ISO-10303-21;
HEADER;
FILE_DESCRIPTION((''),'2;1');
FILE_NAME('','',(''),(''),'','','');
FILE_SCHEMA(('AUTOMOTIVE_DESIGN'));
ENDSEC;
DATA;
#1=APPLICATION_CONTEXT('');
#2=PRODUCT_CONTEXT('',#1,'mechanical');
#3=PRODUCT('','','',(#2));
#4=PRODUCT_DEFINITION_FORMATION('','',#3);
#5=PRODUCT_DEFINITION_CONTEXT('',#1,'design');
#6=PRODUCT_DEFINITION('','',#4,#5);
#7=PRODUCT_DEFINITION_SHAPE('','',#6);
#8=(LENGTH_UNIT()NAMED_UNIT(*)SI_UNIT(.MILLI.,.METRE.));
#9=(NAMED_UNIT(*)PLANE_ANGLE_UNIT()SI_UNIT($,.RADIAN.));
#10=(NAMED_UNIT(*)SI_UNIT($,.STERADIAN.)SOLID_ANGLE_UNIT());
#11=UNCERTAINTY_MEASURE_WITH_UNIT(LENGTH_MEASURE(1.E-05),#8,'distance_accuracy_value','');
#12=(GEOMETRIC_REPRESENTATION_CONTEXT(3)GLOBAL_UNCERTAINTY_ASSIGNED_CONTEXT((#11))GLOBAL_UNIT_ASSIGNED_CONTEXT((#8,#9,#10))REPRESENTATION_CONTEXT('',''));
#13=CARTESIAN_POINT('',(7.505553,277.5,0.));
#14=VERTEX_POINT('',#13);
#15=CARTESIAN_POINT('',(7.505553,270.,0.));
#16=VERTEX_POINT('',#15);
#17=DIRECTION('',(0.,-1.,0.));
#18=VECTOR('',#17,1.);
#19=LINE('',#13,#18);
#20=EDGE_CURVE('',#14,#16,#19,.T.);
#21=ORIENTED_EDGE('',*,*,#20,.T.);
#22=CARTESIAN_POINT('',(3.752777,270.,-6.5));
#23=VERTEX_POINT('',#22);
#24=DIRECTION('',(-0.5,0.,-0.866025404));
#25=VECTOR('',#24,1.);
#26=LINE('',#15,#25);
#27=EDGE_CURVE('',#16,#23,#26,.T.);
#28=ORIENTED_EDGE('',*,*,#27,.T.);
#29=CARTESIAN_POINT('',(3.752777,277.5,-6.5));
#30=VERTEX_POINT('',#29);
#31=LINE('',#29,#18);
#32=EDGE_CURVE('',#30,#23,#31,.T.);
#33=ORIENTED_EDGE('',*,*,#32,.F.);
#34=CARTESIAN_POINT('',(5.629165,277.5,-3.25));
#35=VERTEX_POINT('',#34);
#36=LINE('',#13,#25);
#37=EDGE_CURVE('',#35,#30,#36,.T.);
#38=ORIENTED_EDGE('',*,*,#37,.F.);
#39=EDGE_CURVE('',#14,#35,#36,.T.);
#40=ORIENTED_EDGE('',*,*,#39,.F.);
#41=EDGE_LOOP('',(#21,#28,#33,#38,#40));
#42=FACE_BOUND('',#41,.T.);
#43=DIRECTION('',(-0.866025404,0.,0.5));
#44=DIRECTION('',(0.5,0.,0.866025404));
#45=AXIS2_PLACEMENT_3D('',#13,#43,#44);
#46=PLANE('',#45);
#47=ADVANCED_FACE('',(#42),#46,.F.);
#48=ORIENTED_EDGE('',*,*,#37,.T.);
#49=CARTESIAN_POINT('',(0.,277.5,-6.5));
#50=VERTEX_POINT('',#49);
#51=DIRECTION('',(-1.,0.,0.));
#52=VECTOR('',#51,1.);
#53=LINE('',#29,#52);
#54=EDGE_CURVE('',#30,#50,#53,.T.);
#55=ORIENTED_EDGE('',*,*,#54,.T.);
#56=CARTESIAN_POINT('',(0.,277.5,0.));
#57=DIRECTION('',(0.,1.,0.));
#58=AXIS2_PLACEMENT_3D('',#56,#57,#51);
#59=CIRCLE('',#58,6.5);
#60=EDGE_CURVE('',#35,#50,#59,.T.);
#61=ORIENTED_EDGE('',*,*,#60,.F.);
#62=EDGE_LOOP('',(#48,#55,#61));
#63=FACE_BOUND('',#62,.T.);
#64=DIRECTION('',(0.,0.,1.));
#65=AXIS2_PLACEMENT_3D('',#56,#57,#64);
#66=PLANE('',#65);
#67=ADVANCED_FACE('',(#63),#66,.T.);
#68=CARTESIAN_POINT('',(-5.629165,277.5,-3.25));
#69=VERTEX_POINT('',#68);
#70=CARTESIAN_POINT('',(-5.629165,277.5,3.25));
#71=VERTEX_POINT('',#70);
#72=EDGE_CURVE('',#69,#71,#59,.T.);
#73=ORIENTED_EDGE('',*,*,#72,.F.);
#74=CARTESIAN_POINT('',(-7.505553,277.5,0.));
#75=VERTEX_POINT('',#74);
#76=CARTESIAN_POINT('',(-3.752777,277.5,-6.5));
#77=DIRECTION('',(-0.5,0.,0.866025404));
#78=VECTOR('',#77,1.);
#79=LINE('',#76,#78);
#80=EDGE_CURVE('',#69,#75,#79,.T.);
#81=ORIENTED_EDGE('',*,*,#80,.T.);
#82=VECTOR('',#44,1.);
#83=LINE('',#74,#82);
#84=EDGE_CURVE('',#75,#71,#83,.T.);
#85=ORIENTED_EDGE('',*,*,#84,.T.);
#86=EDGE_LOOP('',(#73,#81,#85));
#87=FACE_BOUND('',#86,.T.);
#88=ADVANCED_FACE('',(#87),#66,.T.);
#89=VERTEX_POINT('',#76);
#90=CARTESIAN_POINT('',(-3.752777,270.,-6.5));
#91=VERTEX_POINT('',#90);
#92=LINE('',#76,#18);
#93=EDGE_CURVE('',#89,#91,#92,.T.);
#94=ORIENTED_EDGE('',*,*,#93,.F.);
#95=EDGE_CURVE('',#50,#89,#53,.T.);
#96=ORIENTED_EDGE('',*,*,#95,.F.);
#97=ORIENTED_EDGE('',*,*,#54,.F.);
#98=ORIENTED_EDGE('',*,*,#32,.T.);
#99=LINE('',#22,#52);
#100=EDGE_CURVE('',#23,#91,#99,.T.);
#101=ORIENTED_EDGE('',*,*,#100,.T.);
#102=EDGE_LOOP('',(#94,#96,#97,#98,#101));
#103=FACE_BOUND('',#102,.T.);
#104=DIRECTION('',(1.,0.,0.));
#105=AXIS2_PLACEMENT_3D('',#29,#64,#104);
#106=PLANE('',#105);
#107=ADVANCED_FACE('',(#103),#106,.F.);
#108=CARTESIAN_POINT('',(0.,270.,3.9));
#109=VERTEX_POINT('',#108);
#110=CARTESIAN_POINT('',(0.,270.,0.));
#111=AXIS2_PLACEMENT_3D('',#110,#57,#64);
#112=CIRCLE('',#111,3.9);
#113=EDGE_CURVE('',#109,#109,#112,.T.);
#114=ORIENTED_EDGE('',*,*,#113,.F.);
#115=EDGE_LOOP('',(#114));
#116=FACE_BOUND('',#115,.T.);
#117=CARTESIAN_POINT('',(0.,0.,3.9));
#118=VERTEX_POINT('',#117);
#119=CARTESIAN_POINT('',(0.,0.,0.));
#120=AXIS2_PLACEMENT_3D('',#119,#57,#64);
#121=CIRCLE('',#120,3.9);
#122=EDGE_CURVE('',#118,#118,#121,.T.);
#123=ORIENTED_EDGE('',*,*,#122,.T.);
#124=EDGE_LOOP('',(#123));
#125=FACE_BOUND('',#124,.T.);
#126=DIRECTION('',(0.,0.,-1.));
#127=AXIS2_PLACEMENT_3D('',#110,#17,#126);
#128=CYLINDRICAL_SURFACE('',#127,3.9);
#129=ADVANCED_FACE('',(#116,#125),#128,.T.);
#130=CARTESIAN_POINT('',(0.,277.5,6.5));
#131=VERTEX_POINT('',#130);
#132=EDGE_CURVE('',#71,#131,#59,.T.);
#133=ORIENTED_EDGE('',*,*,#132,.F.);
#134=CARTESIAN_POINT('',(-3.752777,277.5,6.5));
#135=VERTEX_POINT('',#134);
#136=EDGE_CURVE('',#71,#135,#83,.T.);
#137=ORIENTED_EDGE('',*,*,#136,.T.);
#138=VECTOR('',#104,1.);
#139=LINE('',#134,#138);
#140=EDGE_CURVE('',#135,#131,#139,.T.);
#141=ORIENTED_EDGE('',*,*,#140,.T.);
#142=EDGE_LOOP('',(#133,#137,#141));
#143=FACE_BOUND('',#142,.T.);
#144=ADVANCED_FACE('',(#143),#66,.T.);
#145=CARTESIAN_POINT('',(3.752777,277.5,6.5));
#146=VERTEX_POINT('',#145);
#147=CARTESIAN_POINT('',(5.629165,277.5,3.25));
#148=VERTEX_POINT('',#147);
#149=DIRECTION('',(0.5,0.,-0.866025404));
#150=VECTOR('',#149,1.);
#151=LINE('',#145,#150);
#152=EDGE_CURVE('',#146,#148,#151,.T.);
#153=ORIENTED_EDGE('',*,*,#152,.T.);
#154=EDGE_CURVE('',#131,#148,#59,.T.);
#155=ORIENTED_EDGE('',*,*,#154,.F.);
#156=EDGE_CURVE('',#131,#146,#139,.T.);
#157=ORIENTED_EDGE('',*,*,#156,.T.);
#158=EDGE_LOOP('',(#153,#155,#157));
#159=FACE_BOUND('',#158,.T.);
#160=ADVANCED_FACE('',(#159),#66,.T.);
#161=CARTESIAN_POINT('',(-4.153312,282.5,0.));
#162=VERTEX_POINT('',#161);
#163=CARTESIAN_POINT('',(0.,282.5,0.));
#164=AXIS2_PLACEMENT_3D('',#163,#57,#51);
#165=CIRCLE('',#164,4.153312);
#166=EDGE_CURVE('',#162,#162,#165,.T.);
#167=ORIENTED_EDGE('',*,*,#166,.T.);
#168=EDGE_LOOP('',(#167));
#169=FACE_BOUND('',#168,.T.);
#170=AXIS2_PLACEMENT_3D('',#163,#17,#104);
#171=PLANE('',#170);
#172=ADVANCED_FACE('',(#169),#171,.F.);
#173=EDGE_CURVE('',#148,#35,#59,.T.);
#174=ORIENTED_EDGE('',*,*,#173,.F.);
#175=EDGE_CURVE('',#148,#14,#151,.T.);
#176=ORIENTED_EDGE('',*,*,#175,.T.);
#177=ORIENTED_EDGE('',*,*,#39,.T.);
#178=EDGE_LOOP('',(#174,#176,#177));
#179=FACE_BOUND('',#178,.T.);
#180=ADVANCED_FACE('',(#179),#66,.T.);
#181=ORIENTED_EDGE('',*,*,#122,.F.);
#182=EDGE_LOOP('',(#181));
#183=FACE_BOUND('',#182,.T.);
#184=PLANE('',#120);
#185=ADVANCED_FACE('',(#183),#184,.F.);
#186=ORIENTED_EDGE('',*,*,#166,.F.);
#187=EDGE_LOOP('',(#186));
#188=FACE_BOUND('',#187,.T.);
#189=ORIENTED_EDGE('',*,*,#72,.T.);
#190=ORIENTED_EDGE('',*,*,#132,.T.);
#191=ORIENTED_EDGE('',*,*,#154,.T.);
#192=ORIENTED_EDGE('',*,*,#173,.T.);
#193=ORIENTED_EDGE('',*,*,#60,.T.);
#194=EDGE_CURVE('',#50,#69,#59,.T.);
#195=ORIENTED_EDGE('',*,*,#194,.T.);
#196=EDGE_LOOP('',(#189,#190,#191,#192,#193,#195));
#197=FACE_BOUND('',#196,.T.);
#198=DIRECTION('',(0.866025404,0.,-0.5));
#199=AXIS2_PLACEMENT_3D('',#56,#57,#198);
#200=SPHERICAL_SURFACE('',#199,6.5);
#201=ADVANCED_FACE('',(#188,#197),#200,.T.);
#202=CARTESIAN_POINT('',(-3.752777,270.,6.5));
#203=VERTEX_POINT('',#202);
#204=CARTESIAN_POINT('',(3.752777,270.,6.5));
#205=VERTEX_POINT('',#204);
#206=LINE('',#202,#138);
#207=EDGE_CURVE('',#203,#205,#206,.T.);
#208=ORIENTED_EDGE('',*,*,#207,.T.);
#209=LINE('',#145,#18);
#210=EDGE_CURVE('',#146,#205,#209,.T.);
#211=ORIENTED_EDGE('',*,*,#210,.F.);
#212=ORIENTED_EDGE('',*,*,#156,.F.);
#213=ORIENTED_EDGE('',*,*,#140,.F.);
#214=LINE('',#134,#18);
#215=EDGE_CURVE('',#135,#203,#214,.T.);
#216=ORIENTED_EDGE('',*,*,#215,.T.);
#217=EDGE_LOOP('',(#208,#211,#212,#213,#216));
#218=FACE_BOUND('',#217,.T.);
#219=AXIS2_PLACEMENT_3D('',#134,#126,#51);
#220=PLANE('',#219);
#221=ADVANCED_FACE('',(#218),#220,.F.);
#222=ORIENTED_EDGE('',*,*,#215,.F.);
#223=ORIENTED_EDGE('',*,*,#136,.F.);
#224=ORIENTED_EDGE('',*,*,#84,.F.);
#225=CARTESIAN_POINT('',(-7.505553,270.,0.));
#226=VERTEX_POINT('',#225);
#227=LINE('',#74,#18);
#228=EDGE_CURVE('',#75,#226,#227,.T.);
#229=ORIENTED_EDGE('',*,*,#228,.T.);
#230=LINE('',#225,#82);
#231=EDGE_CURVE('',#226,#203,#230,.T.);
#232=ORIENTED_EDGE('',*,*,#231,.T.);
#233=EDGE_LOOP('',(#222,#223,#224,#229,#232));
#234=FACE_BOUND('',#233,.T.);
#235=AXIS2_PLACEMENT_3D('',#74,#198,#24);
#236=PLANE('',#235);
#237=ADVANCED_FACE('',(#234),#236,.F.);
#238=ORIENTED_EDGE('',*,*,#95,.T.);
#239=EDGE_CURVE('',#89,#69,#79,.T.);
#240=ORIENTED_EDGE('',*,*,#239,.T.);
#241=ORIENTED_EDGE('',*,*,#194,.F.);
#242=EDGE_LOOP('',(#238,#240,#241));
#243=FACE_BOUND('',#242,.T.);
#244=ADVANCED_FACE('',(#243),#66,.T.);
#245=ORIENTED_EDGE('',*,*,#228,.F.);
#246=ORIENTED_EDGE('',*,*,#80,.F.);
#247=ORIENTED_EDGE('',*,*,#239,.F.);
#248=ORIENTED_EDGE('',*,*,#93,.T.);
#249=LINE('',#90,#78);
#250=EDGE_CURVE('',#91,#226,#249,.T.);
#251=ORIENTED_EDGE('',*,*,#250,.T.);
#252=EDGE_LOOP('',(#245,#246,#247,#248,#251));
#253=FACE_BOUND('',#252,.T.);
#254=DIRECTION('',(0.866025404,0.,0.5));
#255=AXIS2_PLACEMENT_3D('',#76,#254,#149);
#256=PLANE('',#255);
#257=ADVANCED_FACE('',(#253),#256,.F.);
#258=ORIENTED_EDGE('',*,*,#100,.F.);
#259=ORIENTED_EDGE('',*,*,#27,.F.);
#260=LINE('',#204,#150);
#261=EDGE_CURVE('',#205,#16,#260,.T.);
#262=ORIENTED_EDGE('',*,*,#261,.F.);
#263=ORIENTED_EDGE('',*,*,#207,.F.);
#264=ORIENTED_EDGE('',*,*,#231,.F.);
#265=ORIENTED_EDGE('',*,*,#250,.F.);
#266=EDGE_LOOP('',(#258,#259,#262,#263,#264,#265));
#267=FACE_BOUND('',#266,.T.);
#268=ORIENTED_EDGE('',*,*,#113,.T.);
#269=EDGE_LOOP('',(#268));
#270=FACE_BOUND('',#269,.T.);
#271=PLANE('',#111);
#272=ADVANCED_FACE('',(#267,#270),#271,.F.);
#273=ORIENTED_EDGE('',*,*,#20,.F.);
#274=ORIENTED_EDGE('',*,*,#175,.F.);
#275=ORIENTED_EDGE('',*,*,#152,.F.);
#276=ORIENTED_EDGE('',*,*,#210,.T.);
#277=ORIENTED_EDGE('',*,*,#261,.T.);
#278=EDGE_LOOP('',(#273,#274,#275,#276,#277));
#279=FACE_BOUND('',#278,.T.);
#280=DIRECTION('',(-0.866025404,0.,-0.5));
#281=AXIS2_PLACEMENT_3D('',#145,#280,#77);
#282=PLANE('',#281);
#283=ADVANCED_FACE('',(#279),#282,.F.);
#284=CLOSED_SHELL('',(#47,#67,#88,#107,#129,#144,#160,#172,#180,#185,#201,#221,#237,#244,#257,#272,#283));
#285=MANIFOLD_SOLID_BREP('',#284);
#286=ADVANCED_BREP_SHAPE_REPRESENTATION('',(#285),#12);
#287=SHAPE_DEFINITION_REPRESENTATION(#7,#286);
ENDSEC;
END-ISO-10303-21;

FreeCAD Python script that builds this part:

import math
import FreeCAD as App
import Part
import Sketcher

V = App.Vector
Q = App.Units.Quantity


def add_polygon(sketch, points):
    """Adds a closed chain of lines whose ends are joined by coincident constraints."""
    first, n = sketch.GeometryCount, len(points)
    for a, b in zip(points, points[1:] + points[:1]):
        sketch.addGeometry(Part.LineSegment(App.Vector(*a, 0), App.Vector(*b, 0)), False)
    for i in range(n):
        sketch.addConstraint(Sketcher.Constraint("Coincident", first + i, 2, first + (i + 1) % n, 1))

doc = App.newDocument("Part")
params = doc.addObject("Spreadsheet::Sheet", "Params")
for row, (alias, value) in enumerate([
    ("sketch1_diameter", "7.8 mm"),
    ("pad1_length", "270 mm"),
    ("pad2_length", "7.5 mm"),
    ("sketch3_radius", "6.5 mm"),
    ("sketch3_height", "5 mm"),
    ("revolution_angle", "360 deg"),
], start=1):
    params.set(f"A{row}", alias)
    params.set(f"B{row}", "=" + value)
    params.setAlias(f"B{row}", alias)

body = doc.addObject("PartDesign::Body", "Body")

# Sketch on XZ plane
sketch1 = body.newObject("Sketcher::SketchObject", "Sketch")
sketch1.AttachmentSupport = (doc.getObject("XZ_Plane"), [""])
sketch1.MapMode = "FlatFace"
sketch1.addGeometry(Part.Circle(V(0, 0, 0), V(0, 0, 1), 3.9), False)
sketch1.addConstraint([
    Sketcher.Constraint("Coincident", 0, 3, -1, 1),
    Sketcher.Constraint("Diameter", 0, Q("7.8 mm")),
])
sketch1.setExpression("Constraints[1]", "Params.sketch1_diameter")
pad1 = body.newObject("PartDesign::Pad", "Pad")
pad1.Profile = sketch1
pad1.setExpression("Length", "Params.pad1_length")
pad1.Reversed = True

# Sketch on XZ plane
sketch2 = body.newObject("Sketcher::SketchObject", "Sketch001")
sketch2.AttachmentSupport = (doc.getObject("XZ_Plane"), [""])
sketch2.MapMode = "FlatFace"
sketch2.AttachmentOffset = App.Placement(V(0, 0, -270), App.Rotation())
add_polygon(sketch2, [(7.505553, 0), (3.752777, -6.5), (-3.752777, -6.5), (-7.505553, 0), (-3.752777, 6.5), (3.752777, 6.5)])  # lines 0-5
sketch2.addConstraint([
    Sketcher.Constraint("Horizontal", 1),
    Sketcher.Constraint("Horizontal", 4),
    Sketcher.Constraint("Symmetric", 0, 2, 3, 2, -1, 1),
    Sketcher.Constraint("Symmetric", 2, 2, 5, 2, -1, 1),
    Sketcher.Constraint("PointOnObject", 2, 2, -1),
    Sketcher.Constraint("Parallel", 2, 5),
    Sketcher.Constraint("Vertical", 1, 2, 3, 2),
    Sketcher.Constraint("Angle", 0, Q("-120 deg")),
    Sketcher.Constraint("DistanceY", 1, 2, 3, 2, Q("13 mm")),
    Sketcher.Constraint("DistanceX", 1, 2, 1, 1, Q("7.505554 mm")),
])
pad2 = body.newObject("PartDesign::Pad", "Pad001")
pad2.Profile = sketch2
pad2.setExpression("Length", "Params.pad2_length")
pad2.Reversed = True

# Sketch on an angled plane
sketch3 = body.newObject("Sketcher::SketchObject", "Sketch002")
sketch3.Placement = App.Placement(V(0, 0, 0), App.Rotation(V(0.866025404, 0, -0.5), V(0, 1, 0), V(0.5, 0, 0.866025404), "ZXY"))
sketch3.addGeometry([
    Part.LineSegment(V(0, 277.5, 0), V(6.5, 277.5, 0)),
    Part.ArcOfCircle(Part.Circle(V(0, 277.5, 0), V(0, 0, 1), 6.5), math.radians(0), math.radians(50.284863)),
    Part.LineSegment(V(4.153312, 282.5, 0), V(0, 282.5, 0)),
    Part.LineSegment(V(0, 282.5, 0), V(0, 277.5, 0)),
], False)
sketch3.addConstraint([
    Sketcher.Constraint("Coincident", 0, 2, 1, 1),
    Sketcher.Constraint("Coincident", 1, 2, 2, 1),
    Sketcher.Constraint("Coincident", 2, 2, 3, 1),
    Sketcher.Constraint("Coincident", 3, 2, 0, 1),
    Sketcher.Constraint("Horizontal", 0),
    Sketcher.Constraint("Horizontal", 2),
    Sketcher.Constraint("Vertical", 3),
    Sketcher.Constraint("Coincident", 3, 2, 1, 3),
    Sketcher.Constraint("PointOnObject", 1, 3, -2),
    Sketcher.Constraint("Radius", 1, Q("6.5 mm")),
    Sketcher.Constraint("DistanceY", 3, 2, 3, 1, Q("5 mm")),
    Sketcher.Constraint("DistanceY", -1, 1, 1, 3, Q("277.5 mm")),
])
sketch3.setExpression("Constraints[9]", "Params.sketch3_radius")
sketch3.setExpression("Constraints[10]", "Params.sketch3_height")
revolution = body.newObject("PartDesign::Revolution", "Revolution")
revolution.Profile = sketch3
revolution.ReferenceAxis = (sketch3, ["V_Axis"])
revolution.setExpression("Angle", "Params.revolution_angle")

doc.recompute()
